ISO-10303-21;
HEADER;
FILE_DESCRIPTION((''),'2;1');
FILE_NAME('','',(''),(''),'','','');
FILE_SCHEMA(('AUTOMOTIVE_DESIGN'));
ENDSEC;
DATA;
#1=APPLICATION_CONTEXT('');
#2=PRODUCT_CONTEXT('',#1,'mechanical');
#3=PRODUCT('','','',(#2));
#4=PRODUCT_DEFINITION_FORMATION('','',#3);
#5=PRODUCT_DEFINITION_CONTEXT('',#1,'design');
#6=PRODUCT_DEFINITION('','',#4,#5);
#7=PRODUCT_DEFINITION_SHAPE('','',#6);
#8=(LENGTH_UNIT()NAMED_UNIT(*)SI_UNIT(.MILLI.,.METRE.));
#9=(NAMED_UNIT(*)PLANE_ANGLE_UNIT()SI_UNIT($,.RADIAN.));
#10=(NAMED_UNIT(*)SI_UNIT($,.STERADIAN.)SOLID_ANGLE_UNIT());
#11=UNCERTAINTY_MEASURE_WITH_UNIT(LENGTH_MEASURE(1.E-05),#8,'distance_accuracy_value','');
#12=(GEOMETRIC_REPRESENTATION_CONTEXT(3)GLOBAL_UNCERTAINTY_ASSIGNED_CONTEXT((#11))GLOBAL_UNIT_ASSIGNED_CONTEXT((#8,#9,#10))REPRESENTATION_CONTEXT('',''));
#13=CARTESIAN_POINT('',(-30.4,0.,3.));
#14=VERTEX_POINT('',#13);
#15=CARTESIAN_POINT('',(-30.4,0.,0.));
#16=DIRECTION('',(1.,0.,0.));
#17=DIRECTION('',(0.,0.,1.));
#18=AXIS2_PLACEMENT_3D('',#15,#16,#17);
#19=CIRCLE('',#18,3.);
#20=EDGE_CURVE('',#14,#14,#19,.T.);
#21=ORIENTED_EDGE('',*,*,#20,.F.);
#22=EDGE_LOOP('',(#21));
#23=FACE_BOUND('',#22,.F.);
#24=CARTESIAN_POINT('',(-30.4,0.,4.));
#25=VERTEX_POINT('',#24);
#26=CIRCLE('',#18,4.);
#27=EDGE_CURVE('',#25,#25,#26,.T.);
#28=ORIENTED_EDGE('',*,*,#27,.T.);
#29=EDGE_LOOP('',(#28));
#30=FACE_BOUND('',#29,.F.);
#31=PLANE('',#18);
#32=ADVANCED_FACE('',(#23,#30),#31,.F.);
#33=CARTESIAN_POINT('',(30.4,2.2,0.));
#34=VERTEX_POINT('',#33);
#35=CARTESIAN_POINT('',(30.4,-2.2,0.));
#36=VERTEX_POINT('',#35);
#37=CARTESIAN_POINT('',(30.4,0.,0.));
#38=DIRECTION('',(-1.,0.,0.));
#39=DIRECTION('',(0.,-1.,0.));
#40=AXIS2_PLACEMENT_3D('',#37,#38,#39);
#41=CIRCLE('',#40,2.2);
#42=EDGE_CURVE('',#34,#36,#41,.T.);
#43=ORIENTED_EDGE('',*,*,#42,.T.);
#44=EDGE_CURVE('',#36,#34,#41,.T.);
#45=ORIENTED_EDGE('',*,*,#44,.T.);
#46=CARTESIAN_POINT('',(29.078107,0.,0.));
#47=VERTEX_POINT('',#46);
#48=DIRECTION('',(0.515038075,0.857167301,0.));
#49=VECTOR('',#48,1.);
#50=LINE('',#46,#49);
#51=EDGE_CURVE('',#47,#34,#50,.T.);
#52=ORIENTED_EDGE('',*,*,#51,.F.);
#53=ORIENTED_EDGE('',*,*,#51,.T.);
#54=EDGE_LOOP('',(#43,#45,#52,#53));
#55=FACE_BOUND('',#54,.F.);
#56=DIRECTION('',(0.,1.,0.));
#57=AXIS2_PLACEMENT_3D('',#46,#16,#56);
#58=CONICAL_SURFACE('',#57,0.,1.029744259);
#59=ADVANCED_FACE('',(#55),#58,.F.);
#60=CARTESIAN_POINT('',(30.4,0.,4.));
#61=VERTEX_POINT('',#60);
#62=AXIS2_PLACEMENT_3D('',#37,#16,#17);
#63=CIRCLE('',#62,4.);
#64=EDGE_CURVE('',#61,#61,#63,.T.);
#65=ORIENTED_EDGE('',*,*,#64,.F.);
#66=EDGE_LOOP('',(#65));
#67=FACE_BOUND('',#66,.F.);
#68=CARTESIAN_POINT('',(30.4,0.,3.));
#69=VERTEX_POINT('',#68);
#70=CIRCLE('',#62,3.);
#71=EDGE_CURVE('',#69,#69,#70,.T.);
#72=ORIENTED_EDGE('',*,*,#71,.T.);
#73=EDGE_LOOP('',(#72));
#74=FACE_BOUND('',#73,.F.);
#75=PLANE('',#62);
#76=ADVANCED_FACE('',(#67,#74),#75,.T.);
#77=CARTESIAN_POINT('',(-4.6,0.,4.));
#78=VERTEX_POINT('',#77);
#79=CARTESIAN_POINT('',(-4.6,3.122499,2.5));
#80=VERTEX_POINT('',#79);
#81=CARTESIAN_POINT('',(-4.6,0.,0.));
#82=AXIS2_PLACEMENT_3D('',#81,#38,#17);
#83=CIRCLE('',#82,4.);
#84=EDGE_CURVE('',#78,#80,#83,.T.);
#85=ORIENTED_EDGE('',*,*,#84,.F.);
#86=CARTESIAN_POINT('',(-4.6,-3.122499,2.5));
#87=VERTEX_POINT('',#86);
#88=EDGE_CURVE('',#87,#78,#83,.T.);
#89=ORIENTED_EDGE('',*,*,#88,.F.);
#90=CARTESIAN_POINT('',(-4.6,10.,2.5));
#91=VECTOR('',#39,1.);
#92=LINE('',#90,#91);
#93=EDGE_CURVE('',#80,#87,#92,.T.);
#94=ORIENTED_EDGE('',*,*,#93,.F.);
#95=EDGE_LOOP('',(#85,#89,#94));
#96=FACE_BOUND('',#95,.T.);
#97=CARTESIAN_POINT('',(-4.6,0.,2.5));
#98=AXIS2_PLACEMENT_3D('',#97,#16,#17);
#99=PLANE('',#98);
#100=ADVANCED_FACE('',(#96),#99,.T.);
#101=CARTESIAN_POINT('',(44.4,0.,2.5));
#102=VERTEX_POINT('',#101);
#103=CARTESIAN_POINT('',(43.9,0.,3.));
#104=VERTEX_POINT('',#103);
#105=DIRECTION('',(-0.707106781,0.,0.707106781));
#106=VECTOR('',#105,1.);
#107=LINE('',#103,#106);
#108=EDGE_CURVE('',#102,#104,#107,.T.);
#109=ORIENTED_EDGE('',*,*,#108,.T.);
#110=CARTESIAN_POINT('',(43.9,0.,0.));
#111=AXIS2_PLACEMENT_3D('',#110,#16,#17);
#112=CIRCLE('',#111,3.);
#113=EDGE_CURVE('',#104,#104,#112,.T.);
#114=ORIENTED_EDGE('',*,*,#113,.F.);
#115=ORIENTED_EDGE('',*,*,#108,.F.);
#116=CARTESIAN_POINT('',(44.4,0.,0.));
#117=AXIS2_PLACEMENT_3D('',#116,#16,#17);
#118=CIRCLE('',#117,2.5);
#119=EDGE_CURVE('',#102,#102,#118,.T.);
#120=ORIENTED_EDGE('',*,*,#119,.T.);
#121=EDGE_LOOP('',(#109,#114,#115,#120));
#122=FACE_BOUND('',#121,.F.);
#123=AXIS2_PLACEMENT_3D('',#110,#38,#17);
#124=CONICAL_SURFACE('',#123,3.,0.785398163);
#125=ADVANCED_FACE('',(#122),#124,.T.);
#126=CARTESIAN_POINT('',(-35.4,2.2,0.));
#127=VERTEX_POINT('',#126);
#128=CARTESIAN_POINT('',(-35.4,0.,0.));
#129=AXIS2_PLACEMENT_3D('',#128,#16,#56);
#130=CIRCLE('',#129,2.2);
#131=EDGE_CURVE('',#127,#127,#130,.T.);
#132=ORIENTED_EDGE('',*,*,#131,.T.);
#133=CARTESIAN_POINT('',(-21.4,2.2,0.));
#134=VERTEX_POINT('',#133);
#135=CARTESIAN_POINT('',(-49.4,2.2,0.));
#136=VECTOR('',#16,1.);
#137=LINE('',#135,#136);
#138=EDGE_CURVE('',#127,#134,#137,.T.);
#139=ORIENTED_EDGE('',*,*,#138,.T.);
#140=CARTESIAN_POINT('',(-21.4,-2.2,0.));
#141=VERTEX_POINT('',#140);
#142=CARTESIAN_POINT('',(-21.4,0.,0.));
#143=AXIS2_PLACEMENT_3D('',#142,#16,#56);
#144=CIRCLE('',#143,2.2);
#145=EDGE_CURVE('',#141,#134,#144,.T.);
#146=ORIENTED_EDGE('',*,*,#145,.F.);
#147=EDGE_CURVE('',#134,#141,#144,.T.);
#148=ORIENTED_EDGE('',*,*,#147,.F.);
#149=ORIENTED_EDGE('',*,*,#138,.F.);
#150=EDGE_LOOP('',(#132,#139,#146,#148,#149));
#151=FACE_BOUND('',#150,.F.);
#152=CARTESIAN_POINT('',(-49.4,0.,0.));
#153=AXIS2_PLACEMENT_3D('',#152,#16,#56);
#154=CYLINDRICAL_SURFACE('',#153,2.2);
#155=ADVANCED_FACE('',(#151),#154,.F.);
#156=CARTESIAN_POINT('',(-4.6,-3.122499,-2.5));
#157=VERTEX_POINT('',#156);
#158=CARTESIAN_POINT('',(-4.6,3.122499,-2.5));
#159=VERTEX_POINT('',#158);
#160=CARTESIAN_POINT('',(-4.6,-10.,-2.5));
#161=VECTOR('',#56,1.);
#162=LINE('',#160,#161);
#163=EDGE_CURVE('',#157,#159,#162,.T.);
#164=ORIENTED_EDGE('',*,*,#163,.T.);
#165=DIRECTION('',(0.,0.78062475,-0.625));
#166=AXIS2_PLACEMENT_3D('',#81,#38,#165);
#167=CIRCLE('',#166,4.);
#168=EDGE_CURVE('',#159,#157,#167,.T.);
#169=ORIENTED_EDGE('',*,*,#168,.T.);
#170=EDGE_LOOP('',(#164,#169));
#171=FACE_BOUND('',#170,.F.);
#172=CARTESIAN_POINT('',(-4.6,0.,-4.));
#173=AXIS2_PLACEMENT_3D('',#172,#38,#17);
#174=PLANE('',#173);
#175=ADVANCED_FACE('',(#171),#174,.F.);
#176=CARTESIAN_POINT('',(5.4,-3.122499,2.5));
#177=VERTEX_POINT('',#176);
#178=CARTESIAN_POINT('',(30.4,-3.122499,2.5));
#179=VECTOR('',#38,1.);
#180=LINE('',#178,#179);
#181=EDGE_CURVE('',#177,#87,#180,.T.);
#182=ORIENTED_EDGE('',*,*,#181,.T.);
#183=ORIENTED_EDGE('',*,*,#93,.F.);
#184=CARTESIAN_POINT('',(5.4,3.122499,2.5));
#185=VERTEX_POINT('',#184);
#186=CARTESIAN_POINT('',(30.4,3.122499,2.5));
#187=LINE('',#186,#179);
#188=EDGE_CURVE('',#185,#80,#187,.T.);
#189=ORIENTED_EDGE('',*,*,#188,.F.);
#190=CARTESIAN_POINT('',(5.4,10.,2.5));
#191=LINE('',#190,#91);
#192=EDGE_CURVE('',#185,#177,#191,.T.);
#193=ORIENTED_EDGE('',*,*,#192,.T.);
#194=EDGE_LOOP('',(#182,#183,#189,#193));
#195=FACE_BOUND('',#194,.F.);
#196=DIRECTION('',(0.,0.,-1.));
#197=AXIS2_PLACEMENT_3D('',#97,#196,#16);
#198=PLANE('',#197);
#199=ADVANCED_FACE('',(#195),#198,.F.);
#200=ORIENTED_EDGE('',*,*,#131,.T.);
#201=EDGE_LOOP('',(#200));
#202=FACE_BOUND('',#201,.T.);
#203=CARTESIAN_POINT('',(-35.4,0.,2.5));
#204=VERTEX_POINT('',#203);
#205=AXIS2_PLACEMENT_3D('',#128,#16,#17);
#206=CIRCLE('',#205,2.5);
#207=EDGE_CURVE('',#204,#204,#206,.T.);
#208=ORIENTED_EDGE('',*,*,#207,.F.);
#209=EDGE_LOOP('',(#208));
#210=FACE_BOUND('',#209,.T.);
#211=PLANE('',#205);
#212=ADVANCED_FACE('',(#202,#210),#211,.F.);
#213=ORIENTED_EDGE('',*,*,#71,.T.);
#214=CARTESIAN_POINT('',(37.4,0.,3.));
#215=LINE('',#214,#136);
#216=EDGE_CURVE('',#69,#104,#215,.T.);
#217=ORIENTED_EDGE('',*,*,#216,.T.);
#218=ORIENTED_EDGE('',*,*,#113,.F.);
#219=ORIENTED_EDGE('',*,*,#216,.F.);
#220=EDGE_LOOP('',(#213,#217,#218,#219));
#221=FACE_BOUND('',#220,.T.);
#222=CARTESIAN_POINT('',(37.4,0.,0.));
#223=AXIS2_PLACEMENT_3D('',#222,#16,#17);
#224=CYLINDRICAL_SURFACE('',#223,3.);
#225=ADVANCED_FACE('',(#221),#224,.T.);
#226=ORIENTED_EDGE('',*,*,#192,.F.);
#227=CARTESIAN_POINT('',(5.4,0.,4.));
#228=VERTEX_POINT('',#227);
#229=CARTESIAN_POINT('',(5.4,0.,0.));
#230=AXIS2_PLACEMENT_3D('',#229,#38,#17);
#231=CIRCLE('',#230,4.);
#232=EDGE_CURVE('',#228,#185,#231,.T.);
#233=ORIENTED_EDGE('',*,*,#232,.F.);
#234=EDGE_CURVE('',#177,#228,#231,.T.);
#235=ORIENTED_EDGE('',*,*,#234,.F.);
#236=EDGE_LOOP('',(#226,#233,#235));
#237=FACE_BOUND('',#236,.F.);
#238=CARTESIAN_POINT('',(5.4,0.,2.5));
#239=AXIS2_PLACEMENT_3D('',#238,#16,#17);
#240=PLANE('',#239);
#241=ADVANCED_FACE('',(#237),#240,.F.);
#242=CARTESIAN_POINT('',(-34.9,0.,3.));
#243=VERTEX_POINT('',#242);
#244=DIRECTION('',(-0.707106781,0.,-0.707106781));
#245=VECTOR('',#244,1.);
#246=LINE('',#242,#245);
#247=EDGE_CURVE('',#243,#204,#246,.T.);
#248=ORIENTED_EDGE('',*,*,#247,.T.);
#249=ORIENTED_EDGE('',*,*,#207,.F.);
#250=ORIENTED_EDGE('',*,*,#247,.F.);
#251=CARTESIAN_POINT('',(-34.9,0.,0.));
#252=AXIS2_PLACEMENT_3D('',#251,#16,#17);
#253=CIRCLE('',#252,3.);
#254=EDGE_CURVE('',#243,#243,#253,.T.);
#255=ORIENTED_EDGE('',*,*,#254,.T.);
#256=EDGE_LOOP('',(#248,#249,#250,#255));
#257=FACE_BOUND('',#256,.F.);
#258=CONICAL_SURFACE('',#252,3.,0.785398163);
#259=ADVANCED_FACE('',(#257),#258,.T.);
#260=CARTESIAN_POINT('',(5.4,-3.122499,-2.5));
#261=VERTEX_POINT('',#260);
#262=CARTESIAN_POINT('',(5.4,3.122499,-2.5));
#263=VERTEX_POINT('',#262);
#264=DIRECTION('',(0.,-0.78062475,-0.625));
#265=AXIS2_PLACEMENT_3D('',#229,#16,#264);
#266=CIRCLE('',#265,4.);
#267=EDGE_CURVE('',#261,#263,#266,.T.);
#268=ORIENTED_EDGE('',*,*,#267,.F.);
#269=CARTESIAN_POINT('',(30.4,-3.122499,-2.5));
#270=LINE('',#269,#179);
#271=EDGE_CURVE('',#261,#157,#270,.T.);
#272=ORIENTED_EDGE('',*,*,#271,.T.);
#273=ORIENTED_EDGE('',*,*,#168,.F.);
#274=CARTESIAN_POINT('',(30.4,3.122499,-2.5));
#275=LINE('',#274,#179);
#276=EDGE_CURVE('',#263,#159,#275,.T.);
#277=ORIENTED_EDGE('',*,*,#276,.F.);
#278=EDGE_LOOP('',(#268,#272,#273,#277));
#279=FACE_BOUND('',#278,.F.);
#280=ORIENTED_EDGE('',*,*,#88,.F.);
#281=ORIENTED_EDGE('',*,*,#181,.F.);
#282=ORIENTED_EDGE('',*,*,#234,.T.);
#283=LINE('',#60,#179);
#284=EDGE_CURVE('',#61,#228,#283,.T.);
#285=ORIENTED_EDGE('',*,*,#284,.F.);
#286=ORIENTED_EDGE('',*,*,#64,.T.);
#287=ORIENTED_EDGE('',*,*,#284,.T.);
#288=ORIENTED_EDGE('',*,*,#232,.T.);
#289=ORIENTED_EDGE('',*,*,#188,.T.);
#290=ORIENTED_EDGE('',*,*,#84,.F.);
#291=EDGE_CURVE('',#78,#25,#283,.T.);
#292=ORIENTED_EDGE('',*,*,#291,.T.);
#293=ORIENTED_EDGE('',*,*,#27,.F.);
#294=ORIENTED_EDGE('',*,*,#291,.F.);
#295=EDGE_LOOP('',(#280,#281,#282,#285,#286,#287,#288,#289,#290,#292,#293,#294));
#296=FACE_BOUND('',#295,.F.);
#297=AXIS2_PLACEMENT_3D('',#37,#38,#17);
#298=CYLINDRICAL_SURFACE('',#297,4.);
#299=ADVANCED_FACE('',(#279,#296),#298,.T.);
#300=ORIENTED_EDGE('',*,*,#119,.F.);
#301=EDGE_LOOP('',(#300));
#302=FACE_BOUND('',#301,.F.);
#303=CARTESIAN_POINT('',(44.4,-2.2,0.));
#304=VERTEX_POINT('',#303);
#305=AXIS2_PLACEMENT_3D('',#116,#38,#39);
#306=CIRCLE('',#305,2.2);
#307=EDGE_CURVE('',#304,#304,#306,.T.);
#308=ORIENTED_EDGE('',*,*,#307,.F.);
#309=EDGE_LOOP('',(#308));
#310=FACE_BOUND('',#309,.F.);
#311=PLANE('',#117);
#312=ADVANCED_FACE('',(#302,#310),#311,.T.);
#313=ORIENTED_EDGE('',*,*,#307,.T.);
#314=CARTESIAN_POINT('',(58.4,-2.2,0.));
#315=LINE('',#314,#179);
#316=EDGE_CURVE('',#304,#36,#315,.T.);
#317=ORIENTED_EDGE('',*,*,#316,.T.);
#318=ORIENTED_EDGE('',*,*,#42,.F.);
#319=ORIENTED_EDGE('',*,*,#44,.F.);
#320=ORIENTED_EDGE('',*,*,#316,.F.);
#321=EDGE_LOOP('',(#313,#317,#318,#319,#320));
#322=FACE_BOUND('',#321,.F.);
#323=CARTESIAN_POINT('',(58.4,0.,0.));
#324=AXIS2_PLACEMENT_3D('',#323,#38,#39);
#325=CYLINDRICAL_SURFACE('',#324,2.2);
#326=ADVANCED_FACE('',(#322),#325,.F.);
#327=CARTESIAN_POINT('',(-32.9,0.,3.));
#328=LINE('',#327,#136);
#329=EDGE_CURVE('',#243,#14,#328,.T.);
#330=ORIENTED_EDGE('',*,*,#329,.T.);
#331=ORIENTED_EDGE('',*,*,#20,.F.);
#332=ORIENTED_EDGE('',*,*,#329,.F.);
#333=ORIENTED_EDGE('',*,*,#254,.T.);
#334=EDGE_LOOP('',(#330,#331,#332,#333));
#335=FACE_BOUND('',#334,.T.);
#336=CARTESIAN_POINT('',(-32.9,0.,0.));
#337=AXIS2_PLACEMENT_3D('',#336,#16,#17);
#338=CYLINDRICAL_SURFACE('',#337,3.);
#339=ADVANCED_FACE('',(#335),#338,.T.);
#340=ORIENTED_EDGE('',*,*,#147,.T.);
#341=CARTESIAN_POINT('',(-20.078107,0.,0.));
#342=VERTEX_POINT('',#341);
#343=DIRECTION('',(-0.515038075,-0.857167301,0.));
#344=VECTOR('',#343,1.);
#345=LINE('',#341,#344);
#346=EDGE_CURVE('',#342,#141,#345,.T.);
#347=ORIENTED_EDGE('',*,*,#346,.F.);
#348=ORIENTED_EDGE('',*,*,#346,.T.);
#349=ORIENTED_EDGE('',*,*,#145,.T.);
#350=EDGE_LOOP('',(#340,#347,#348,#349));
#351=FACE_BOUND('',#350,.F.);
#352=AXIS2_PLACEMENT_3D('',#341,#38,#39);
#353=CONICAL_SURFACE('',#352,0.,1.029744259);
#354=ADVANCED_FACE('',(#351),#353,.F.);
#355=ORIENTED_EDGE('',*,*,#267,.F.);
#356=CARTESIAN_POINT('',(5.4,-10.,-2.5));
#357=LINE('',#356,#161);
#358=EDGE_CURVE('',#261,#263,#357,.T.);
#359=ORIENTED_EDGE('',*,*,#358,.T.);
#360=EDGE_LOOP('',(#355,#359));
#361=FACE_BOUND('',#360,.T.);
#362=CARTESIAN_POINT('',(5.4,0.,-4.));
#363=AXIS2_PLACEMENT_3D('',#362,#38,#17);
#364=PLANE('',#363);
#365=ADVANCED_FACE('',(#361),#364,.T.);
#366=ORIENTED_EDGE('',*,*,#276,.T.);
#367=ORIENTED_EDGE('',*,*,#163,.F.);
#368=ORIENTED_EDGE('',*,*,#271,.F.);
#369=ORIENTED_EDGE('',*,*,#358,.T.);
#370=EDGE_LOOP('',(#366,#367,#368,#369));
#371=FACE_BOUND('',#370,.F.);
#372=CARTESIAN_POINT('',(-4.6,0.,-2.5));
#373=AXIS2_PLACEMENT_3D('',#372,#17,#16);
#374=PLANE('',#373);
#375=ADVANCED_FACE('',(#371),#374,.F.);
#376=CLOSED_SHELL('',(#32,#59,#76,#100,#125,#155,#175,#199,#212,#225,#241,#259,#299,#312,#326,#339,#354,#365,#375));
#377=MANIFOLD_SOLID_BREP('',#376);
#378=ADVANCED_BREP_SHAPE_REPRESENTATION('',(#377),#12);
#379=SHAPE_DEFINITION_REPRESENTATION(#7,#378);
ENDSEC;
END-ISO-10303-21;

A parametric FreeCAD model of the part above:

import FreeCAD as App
import Part
import Sketcher

V = App.Vector


def edges_at(feature, points):
    """Names of the edges that pass closest to the given points."""
    edges = feature.Shape.Edges
    near = lambda p: min(range(len(edges)), key=lambda i: edges[i].distToShape(Part.Vertex(*p))[0])
    return sorted({f"Edge{near(p) + 1}" for p in points})


def add_polygon(sketch, points):
    """Adds a closed chain of lines whose ends are joined by coincident constraints."""
    first, n = sketch.GeometryCount, len(points)
    for a, b in zip(points, points[1:] + points[:1]):
        sketch.addGeometry(Part.LineSegment(App.Vector(*a, 0), App.Vector(*b, 0)), False)
    for i in range(n):
        sketch.addConstraint(Sketcher.Constraint("Coincident", first + i, 2, first + (i + 1) % n, 1))

doc = App.newDocument("Part")
body = doc.addObject("PartDesign::Body", "Body")

# Sketch on XZ plane
sketch1 = body.newObject("Sketcher::SketchObject", "Sketch")
sketch1.AttachmentSupport = (doc.getObject("XZ_Plane"), [""])
sketch1.MapMode = "FlatFace"
add_polygon(sketch1, [(30.4, 3), (30.4, 4), (-30.4, 4), (-30.4, 3), (-35.4, 3), (-35.4, 0), (44.4, 0), (44.4, 3)])  # lines 0-7
sketch1.addConstraint([
    Sketcher.Constraint("Vertical", 0),
    Sketcher.Constraint("Horizontal", 1),
    Sketcher.Constraint("Vertical", 2),
    Sketcher.Constraint("Horizontal", 3),
    Sketcher.Constraint("Vertical", 4),
    Sketcher.Constraint("Horizontal", 5),
    Sketcher.Constraint("Vertical", 6),
    Sketcher.Constraint("Horizontal", 7),
    Sketcher.Constraint("Symmetric", 2, 2, 7, 2, -2),
    Sketcher.Constraint("PointOnObject", 4, 2, -1),
    Sketcher.Constraint("DistanceX", 3, 2, 3, 1, 5.0),
    Sketcher.Constraint("DistanceX", 7, 2, 7, 1, 14.0),
    Sketcher.Constraint("DistanceY", 0, 1, 0, 2, 1.0),
    Sketcher.Constraint("DistanceY", 4, 2, 4, 1, 3.0),
    Sketcher.Constraint("DistanceX", 1, 2, 1, 1, 60.8),
])
revolution = body.newObject("PartDesign::Revolution", "Revolution")
revolution.Profile = sketch1
revolution.ReferenceAxis = (sketch1, ["H_Axis"])
revolution.Angle = 360
doc.recompute()

chamfer = body.newObject("PartDesign::Chamfer", "Chamfer")
chamfer.Base = (revolution, edges_at(revolution, [(44.4, 0, -3)]))
chamfer.Size = 0.5

# Sketch on YZ plane
sketch2 = body.newObject("Sketcher::SketchObject", "Sketch001")
sketch2.AttachmentSupport = (doc.getObject("YZ_Plane"), [""])
sketch2.MapMode = "FlatFace"
sketch2.AttachmentOffset = App.Placement(V(0, 0, 44.4), App.Rotation())
sketch2.addGeometry(Part.Circle(V(0, 0, 0), V(0, 0, 1), 2.2), False)
sketch2.addConstraint([
    Sketcher.Constraint("Coincident", 0, 3, -1, 1),
    Sketcher.Constraint("Diameter", 0, 4.4),
])
doc.recompute()
hole = body.newObject("PartDesign::Hole", "Hole")
hole.Profile = sketch2
hole.ThreadType = "None"
hole.Diameter = 4.4
hole.DepthType = "Dimension"
hole.Depth = 14
hole.DrillPoint = "Angled"
hole.DrillPointAngle = 118
doc.recompute()

chamfer2 = body.newObject("PartDesign::Chamfer", "Chamfer001")
chamfer2.Base = (hole, edges_at(hole, [(-35.4, 0, -3)]))
chamfer2.Size = 0.5

# Sketch on YZ plane
sketch3 = body.newObject("Sketcher::SketchObject", "Sketch002")
sketch3.AttachmentSupport = (doc.getObject("YZ_Plane"), [""])
sketch3.MapMode = "FlatFace"
sketch3.AttachmentOffset = App.Placement(V(0, 0, -35.4), App.Rotation())
sketch3.addGeometry(Part.Circle(V(0, 0, 0), V(0, 0, 1), 2.2), False)
sketch3.addConstraint([
    Sketcher.Constraint("Coincident", 0, 3, -1, 1),
    Sketcher.Constraint("Diameter", 0, 4.4),
])
doc.recompute()
hole2 = body.newObject("PartDesign::Hole", "Hole001")
hole2.Profile = sketch3
hole2.ThreadType = "None"
hole2.Diameter = 4.4
hole2.DepthType = "Dimension"
hole2.Depth = 14
hole2.DrillPoint = "Angled"
hole2.DrillPointAngle = 118
hole2.Reversed = True

# Sketch on XZ plane
sketch4 = body.newObject("Sketcher::SketchObject", "Sketch003")
sketch4.AttachmentSupport = (doc.getObject("XZ_Plane"), [""])
sketch4.MapMode = "FlatFace"
add_polygon(sketch4, [(-4.6, -2.5), (-4.6, -4), (5.4, -4), (5.4, -2.5)])  # lines 0-3
add_polygon(sketch4, [(-4.6, 4), (-4.6, 2.5), (5.4, 2.5), (5.4, 4)])  # lines 4-7
sketch4.addConstraint([
    Sketcher.Constraint("Vertical", 0),
    Sketcher.Constraint("Horizontal", 1),
    Sketcher.Constraint("Vertical", 2),
    Sketcher.Constraint("Horizontal", 3),
    Sketcher.Constraint("Vertical", 4),
    Sketcher.Constraint("Horizontal", 5),
    Sketcher.Constraint("Vertical", 6),
    Sketcher.Constraint("Horizontal", 7),
    Sketcher.Constraint("Symmetric", 3, 2, 4, 2, -1),
    Sketcher.Constraint("Symmetric", 1, 2, 6, 2, -1),
    Sketcher.Constraint("DistanceX", 1, 1, 1, 2, 10.0),
    Sketcher.Constraint("DistanceY", 0, 2, 0, 1, 1.5),
    Sketcher.Constraint("DistanceY", 0, 2, -1, 1, 4.0),
    Sketcher.Constraint("DistanceX", 0, 2, -1, 1, 4.6),
])
pocket1 = body.newObject("PartDesign::Pocket", "Pocket")
pocket1.Profile = sketch4
pocket1.Length = 20
pocket1.Midplane = True

doc.recompute()
